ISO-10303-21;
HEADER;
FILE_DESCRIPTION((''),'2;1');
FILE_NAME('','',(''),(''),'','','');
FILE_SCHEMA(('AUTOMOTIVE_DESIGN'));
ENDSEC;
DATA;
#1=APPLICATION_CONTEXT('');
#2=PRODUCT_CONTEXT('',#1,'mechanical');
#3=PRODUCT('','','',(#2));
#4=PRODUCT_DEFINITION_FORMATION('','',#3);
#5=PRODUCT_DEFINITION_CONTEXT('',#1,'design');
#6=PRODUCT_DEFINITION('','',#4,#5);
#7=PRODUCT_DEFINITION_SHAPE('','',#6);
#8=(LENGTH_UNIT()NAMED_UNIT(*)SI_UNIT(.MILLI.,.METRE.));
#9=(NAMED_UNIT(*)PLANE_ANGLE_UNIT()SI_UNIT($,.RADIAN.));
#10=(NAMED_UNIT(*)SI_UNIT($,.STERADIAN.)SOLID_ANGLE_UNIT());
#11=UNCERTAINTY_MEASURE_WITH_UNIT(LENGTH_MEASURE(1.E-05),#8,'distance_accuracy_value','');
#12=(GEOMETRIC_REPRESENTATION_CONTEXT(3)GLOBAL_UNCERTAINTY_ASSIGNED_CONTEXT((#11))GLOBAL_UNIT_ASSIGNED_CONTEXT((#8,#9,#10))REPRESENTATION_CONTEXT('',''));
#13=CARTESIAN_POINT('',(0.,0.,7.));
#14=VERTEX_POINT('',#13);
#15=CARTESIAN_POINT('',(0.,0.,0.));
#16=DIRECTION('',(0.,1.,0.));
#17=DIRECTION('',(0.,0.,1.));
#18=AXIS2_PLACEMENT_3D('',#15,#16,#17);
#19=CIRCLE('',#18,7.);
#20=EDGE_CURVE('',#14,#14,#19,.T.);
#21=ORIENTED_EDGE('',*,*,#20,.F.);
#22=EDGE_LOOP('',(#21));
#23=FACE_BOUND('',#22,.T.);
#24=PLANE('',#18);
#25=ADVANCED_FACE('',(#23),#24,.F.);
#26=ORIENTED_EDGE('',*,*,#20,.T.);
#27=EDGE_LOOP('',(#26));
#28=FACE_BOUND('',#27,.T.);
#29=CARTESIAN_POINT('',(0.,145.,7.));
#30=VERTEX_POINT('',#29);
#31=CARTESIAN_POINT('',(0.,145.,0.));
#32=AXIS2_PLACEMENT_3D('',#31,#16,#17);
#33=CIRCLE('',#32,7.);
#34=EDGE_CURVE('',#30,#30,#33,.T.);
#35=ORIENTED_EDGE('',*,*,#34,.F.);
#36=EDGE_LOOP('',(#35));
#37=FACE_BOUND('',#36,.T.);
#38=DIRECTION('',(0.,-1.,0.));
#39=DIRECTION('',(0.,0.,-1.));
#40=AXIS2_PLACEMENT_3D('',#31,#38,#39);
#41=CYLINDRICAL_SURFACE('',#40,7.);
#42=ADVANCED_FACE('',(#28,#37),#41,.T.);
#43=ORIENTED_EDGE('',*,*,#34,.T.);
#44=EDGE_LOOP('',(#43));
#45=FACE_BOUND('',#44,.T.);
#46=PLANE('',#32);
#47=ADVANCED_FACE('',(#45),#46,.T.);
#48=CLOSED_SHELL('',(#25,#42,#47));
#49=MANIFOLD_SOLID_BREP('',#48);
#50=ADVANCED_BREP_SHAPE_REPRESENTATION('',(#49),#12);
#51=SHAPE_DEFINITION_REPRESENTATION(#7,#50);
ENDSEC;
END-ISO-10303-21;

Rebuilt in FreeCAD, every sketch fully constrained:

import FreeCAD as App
import Part
import Sketcher
from FreeCAD import Vector

doc = App.newDocument("Part")
params = doc.addObject("Spreadsheet::Sheet", "Params")
for row, (alias, value) in enumerate([
    ("sketch1_diameter", "14 mm"),
    ("pad1_length", "145 mm"),
], start=1):
    params.set(f"A{row}", alias)
    params.set(f"B{row}", "=" + value)
    params.setAlias(f"B{row}", alias)

body = doc.addObject("PartDesign::Body", "Body")

sketch1 = doc.addObject("Sketcher::SketchObject", "Sketch")
body.addObject(sketch1)
sketch1.AttachmentSupport = (doc.XZ_Plane, [""])
sketch1.MapMode = "FlatFace"
sketch1.addGeometry(Part.Circle(Vector(0, 0, 0), Vector(0, 0, 1), 7), False)
sketch1.addConstraint([
    Sketcher.Constraint("Coincident", 0, 3, -1, 1),
    Sketcher.Constraint("Diameter", 0, 14.0),
])
sketch1.setExpression("Constraints[1]", "Params.sketch1_diameter")
pad1 = doc.addObject("PartDesign::Pad", "Pad")
body.addObject(pad1)
pad1.Profile = sketch1
pad1.setExpression("Length", "Params.pad1_length")
pad1.Reversed = True

doc.recompute()
